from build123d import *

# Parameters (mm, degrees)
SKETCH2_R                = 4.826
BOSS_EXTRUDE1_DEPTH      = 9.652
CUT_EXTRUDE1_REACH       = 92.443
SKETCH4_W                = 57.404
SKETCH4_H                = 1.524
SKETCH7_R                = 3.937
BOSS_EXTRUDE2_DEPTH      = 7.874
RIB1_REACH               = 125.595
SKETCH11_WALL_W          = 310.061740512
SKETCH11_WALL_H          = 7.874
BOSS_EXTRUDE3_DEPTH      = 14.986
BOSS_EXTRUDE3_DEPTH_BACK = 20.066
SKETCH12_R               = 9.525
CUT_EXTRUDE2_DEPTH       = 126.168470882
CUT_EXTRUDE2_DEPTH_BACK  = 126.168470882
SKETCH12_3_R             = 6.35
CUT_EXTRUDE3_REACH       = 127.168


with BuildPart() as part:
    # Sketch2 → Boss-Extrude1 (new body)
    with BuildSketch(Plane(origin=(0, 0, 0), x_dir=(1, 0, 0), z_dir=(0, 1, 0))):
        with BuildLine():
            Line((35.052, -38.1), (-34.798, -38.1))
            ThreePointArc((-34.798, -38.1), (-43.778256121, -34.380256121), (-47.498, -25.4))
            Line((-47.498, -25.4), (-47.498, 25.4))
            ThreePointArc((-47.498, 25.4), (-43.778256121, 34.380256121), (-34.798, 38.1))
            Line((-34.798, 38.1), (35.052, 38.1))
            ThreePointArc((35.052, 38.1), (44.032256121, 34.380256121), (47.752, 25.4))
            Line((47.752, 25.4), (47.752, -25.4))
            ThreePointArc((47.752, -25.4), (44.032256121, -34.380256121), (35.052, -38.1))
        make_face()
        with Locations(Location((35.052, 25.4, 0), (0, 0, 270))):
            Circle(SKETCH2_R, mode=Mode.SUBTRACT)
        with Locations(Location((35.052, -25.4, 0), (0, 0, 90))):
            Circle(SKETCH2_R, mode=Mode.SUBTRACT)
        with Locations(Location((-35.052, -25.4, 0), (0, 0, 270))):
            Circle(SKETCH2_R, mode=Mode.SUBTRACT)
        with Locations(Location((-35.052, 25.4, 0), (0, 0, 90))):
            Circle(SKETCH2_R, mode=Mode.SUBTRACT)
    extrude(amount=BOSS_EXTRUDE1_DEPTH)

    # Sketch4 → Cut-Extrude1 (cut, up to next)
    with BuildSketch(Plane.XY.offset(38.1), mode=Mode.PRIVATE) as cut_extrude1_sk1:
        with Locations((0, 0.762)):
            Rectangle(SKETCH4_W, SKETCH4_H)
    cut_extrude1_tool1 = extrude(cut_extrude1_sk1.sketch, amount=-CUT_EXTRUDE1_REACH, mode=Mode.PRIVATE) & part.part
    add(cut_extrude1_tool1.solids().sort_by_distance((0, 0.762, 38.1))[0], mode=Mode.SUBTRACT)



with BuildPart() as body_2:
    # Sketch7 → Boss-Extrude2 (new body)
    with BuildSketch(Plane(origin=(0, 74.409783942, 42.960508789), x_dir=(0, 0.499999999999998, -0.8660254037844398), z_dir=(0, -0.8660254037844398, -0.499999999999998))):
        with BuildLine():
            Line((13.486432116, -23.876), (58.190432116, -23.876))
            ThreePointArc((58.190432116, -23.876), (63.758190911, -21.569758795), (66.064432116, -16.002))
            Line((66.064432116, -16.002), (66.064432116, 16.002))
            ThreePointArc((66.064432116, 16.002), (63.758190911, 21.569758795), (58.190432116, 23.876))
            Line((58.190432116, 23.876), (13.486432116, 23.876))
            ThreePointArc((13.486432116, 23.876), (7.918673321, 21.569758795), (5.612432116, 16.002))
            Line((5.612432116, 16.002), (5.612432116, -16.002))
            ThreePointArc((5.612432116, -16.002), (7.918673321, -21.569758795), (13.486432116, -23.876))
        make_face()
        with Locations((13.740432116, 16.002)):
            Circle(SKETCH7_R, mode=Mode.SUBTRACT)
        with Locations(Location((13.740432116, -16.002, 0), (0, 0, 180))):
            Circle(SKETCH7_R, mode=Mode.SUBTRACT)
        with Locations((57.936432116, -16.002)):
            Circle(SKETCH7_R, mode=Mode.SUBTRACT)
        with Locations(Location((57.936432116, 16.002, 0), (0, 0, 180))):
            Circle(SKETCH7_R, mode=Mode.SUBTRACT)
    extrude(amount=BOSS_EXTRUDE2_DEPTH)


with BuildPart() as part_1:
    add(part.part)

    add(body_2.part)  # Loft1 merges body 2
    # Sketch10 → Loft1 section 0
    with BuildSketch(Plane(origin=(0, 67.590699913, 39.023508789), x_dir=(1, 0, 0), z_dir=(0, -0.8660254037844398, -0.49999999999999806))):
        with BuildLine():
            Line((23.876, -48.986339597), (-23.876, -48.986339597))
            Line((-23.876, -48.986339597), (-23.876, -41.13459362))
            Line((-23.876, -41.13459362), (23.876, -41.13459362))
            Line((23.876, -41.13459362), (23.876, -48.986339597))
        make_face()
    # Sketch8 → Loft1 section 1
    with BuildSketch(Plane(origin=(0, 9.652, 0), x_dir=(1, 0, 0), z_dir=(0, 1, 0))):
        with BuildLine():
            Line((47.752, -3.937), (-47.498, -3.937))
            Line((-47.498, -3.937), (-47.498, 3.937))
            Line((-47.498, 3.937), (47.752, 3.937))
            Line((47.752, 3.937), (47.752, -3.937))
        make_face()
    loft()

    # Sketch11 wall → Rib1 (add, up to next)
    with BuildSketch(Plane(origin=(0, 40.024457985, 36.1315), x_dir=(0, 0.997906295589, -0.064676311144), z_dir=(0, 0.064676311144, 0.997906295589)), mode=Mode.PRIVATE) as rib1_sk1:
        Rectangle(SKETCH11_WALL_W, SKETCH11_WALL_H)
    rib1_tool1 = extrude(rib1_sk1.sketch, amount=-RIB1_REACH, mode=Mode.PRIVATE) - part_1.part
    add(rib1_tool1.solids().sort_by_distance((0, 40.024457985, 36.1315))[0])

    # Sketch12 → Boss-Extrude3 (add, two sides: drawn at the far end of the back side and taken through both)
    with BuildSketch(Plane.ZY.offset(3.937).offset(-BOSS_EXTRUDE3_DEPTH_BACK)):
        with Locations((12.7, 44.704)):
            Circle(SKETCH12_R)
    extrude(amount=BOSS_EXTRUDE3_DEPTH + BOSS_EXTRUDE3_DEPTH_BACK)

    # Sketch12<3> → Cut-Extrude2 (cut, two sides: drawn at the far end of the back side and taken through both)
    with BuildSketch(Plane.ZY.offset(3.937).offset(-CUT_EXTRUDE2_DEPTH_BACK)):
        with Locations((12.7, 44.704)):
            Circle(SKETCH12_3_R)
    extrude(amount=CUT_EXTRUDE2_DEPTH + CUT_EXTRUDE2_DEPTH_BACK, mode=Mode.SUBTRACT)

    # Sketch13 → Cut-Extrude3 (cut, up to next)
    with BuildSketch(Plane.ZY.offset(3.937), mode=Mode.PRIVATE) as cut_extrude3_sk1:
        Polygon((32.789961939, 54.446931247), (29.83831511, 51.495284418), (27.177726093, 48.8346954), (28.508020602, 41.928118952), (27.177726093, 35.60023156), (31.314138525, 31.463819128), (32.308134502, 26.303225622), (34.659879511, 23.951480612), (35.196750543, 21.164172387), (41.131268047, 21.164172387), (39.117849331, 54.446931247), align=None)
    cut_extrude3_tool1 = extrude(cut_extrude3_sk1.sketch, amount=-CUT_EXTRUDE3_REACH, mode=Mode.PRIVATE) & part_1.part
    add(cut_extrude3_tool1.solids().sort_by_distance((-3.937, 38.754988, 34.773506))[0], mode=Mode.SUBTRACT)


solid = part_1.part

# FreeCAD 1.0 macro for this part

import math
import FreeCAD as App
import Part
import Sketcher
from FreeCAD import Vector
Q = App.Units.Quantity

doc = App.newDocument("Part")
body = doc.addObject("PartDesign::Body", "Body")

# Sketch on XZ plane
sketch1 = doc.addObject("Sketcher::SketchObject", "Sketch")
body.addObject(sketch1)
sketch1.AttachmentSupport = (doc.XZ_Plane, [""])
sketch1.MapMode = "FlatFace"
sketch1.addGeometry([
    Part.LineSegment(Vector(-34.8, 38.1, 0), Vector(35.1, 38.1, 0)),  # 0
    Part.ArcOfCircle(Part.Circle(Vector(35.1, 25.4, 0), Vector(0, 0, 1), 12.7), math.radians(0), math.radians(90)),  # 1
    Part.LineSegment(Vector(47.8, 25.4, 0), Vector(47.8, -25.4, 0)),  # 2
    Part.ArcOfCircle(Part.Circle(Vector(35.1, -25.4, 0), Vector(0, 0, 1), 12.7), math.radians(-90), math.radians(0)),  # 3
    Part.LineSegment(Vector(35.1, -38.1, 0), Vector(-34.8, -38.1, 0)),  # 4
    Part.ArcOfCircle(Part.Circle(Vector(-34.8, -25.4, 0), Vector(0, 0, 1), 12.7), math.radians(180), math.radians(270)),  # 5
    Part.LineSegment(Vector(-47.5, -25.4, 0), Vector(-47.5, 25.4, 0)),  # 6
    Part.ArcOfCircle(Part.Circle(Vector(-34.8, 25.4, 0), Vector(0, 0, 1), 12.7), math.radians(90), math.radians(180)),  # 7
    Part.Circle(Vector(35.1, 25.4, 0), Vector(0, 0, 1), 4.8),  # 8
    Part.Circle(Vector(-35.1, 25.4, 0), Vector(0, 0, 1), 4.8),  # 9
    Part.Circle(Vector(35.1, -25.4, 0), Vector(0, 0, 1), 4.8),  # 10
    Part.Circle(Vector(-35.1, -25.4, 0), Vector(0, 0, 1), 4.8),  # 11
], False)
sketch1.addConstraint([
    Sketcher.Constraint("Tangent", 0, 2, 1, 2),
    Sketcher.Constraint("Tangent", 1, 1, 2, 1),
    Sketcher.Constraint("Tangent", 2, 2, 3, 2),
    Sketcher.Constraint("Tangent", 3, 1, 4, 1),
    Sketcher.Constraint("Tangent", 4, 2, 5, 2),
    Sketcher.Constraint("Tangent", 5, 1, 6, 1),
    Sketcher.Constraint("Tangent", 6, 2, 7, 2),
    Sketcher.Constraint("Tangent", 7, 1, 0, 1),
    Sketcher.Constraint("Horizontal", 0),
    Sketcher.Constraint("Vertical", 2),
    Sketcher.Constraint("Horizontal", 4),
    Sketcher.Constraint("Vertical", 6),
    Sketcher.Constraint("Coincident", 8, 3, 1, 3),
    Sketcher.Constraint("Coincident", 10, 3, 3, 3),
    Sketcher.Constraint("Equal", 1, 3),
    Sketcher.Constraint("Equal", 3, 5),
    Sketcher.Constraint("Equal", 5, 7),
    Sketcher.Constraint("Equal", 8, 9),
    Sketcher.Constraint("Equal", 9, 10),
    Sketcher.Constraint("Equal", 10, 11),
    Sketcher.Constraint("Symmetric", 3, 3, 9, 3, -1, 1),
    Sketcher.Constraint("Symmetric", 1, 3, 11, 3, -1, 1),
    Sketcher.Constraint("Horizontal", 8, 3, 9, 3),
    Sketcher.Constraint("Radius", 1, Q("0.5 in")),
    Sketcher.Constraint("Diameter", 8, Q("0.38 in")),
    Sketcher.Constraint("DistanceY", 2, 2, 2, 1, Q("2 in")),
    Sketcher.Constraint("DistanceX", 0, 1, 0, 2, Q("2.75 in")),
    Sketcher.Constraint("DistanceX", -1, 1, 1, 3, Q("1.38 in")),
])
pad1 = doc.addObject("PartDesign::Pad", "Pad")
body.addObject(pad1)
pad1.Profile = sketch1
pad1.Length = Q("0.38 in")
pad1.Reversed = True

# Sketch on XY plane
sketch2 = doc.addObject("Sketcher::SketchObject", "Sketch001")
body.addObject(sketch2)
sketch2.AttachmentSupport = (doc.XY_Plane, [""])
sketch2.MapMode = "FlatFace"
sketch2.AttachmentOffset = App.Placement(Vector(0, 0, 1.5 * 25.4), App.Rotation())
sketch2.addGeometry([
    Part.LineSegment(Vector(-28.7, 1.5, 0), Vector(-28.7, 0, 0)),
    Part.LineSegment(Vector(-28.7, 0, 0), Vector(28.7, 0, 0)),
    Part.LineSegment(Vector(28.7, 0, 0), Vector(28.7, 1.5, 0)),
    Part.LineSegment(Vector(28.7, 1.5, 0), Vector(-28.7, 1.5, 0)),
], False)
sketch2.addConstraint([
    Sketcher.Constraint("Coincident", 0, 2, 1, 1),
    Sketcher.Constraint("Coincident", 1, 2, 2, 1),
    Sketcher.Constraint("Coincident", 2, 2, 3, 1),
    Sketcher.Constraint("Coincident", 3, 2, 0, 1),
    Sketcher.Constraint("Vertical", 0),
    Sketcher.Constraint("Horizontal", 1),
    Sketcher.Constraint("Vertical", 2),
    Sketcher.Constraint("Horizontal", 3),
    Sketcher.Constraint("Symmetric", 0, 2, 1, 2, -1, 1),
    Sketcher.Constraint("DistanceX", 1, 1, 1, 2, Q("2.26 in")),
    Sketcher.Constraint("DistanceY", 0, 2, 0, 1, Q("0.06 in")),
])
pocket1 = doc.addObject("PartDesign::Pocket", "Pocket")
body.addObject(pocket1)
pocket1.Profile = sketch2
pocket1.Type = "UpToFirst"
body2 = doc.addObject("PartDesign::Body", "Body001")

# Sketch on an angled plane
sketch3 = doc.addObject("Sketcher::SketchObject", "Sketch002")
body2.addObject(sketch3)
sketch3.Placement = App.Placement(Vector(0, 74.409784, 42.960509), App.Rotation(Vector(0, 0.5, -0.866025404), Vector(1, 0, 0), Vector(0, -0.866025404, -0.5), "ZXY"))
sketch3.addGeometry([
    Part.LineSegment(Vector(13.5, -23.9, 0), Vector(58.2, -23.9, 0)),  # 0
    Part.ArcOfCircle(Part.Circle(Vector(58.2, -16, 0), Vector(0, 0, 1), 7.9), math.radians(-90), math.radians(0)),  # 1
    Part.LineSegment(Vector(66.1, -16, 0), Vector(66.1, 16, 0)),  # 2
    Part.ArcOfCircle(Part.Circle(Vector(58.2, 16, 0), Vector(0, 0, 1), 7.9), math.radians(0), math.radians(90)),  # 3
    Part.LineSegment(Vector(58.2, 23.9, 0), Vector(13.5, 23.9, 0)),  # 4
    Part.ArcOfCircle(Part.Circle(Vector(13.5, 16, 0), Vector(0, 0, 1), 7.9), math.radians(90), math.radians(180)),  # 5
    Part.LineSegment(Vector(5.6, 16, 0), Vector(5.6, -16, 0)),  # 6
    Part.ArcOfCircle(Part.Circle(Vector(13.5, -16, 0), Vector(0, 0, 1), 7.9), math.radians(180), math.radians(270)),  # 7
    Part.Circle(Vector(13.7, -16, 0), Vector(0, 0, 1), 3.9),  # 8
    Part.Circle(Vector(57.9, -16, 0), Vector(0, 0, 1), 3.9),  # 9
    Part.Circle(Vector(13.7, 16, 0), Vector(0, 0, 1), 3.9),  # 10
    Part.Circle(Vector(57.9, 16, 0), Vector(0, 0, 1), 3.9),  # 11
], False)
sketch3.addConstraint([
    Sketcher.Constraint("Tangent", 0, 2, 1, 1),
    Sketcher.Constraint("Tangent", 1, 2, 2, 1),
    Sketcher.Constraint("Tangent", 2, 2, 3, 1),
    Sketcher.Constraint("Tangent", 3, 2, 4, 1),
    Sketcher.Constraint("Tangent", 4, 2, 5, 1),
    Sketcher.Constraint("Tangent", 5, 2, 6, 1),
    Sketcher.Constraint("Tangent", 6, 2, 7, 1),
    Sketcher.Constraint("Tangent", 7, 2, 0, 1),
    Sketcher.Constraint("Horizontal", 0),
    Sketcher.Constraint("Vertical", 2),
    Sketcher.Constraint("Horizontal", 4),
    Sketcher.Constraint("Vertical", 6),
    Sketcher.Constraint("Equal", 1, 3),
    Sketcher.Constraint("Equal", 3, 5),
    Sketcher.Constraint("Equal", 5, 7),
    Sketcher.Constraint("Equal", 8, 9),
    Sketcher.Constraint("Equal", 9, 10),
    Sketcher.Constraint("Equal", 10, 11),
    Sketcher.Constraint("Symmetric", 8, 3, 10, 3, -1),
    Sketcher.Constraint("Symmetric", 9, 3, 11, 3, -1),
    Sketcher.Constraint("Horizontal", 7, 3, 8, 3),
    Sketcher.Constraint("Horizontal", 8, 3, 9, 3),
    Sketcher.Constraint("Horizontal", 5, 3, 10, 3),
    Sketcher.Constraint("Diameter", 8, Q("0.31 in")),
    Sketcher.Constraint("Radius", 1, Q("0.31 in")),
    Sketcher.Constraint("DistanceX", 0, 1, 0, 2, Q("1.76 in")),
    Sketcher.Constraint("DistanceY", 2, 1, 2, 2, Q("1.26 in")),
    Sketcher.Constraint("DistanceX", 7, 3, 8, 3, Q("0.01 in")),
    Sketcher.Constraint("DistanceX", 9, 3, 1, 3, Q("0.01 in")),
    Sketcher.Constraint("DistanceX", -1, 1, 1, 3, 58.190432),
])
pad2 = doc.addObject("PartDesign::Pad", "Pad001")
body2.addObject(pad2)
pad2.Profile = sketch3
pad2.Length = Q("0.31 in")
body.AllowCompound = True
doc.recompute()

boolean = doc.addObject("PartDesign::Boolean", "Boolean")
body.addObject(boolean)
boolean.Type = "Fuse"
boolean.addObjects([body2])

# Sketch on an angled plane
sketch4 = doc.addObject("Sketcher::SketchObject", "Sketch003")
body.addObject(sketch4)
sketch4.Placement = App.Placement(Vector(0, 67.5907, 39.023509), App.Rotation(Vector(1, 0, 0), Vector(0, -0.5, 0.866025404), Vector(0, -0.866025404, -0.5), "ZXY"))
sketch4.addGeometry([
    Part.LineSegment(Vector(-24, -49, 0), Vector(24, -49, 0)),
    Part.LineSegment(Vector(24, -49, 0), Vector(24, -41, 0)),
    Part.LineSegment(Vector(24, -41, 0), Vector(-24, -41, 0)),
    Part.LineSegment(Vector(-24, -41, 0), Vector(-24, -49, 0)),
], False)
sketch4.addConstraint([
    Sketcher.Constraint("Coincident", 0, 2, 1, 1),
    Sketcher.Constraint("Coincident", 1, 2, 2, 1),
    Sketcher.Constraint("Coincident", 2, 2, 3, 1),
    Sketcher.Constraint("Coincident", 3, 2, 0, 1),
    Sketcher.Constraint("Horizontal", 0),
    Sketcher.Constraint("Vertical", 1),
    Sketcher.Constraint("Horizontal", 2),
    Sketcher.Constraint("Vertical", 3),
    Sketcher.Constraint("DistanceX", 0, 1, 0, 2, Q("1.88 in")),
    Sketcher.Constraint("DistanceX", -1, 1, 0, 2, Q("0.94 in")),
    Sketcher.Constraint("DistanceY", 1, 1, 1, 2, 7.851746),
    Sketcher.Constraint("DistanceY", 0, 2, -1, 1, 48.98634),
])

# Sketch on XZ plane
sketch5 = doc.addObject("Sketcher::SketchObject", "Sketch004")
body.addObject(sketch5)
sketch5.AttachmentSupport = (doc.XZ_Plane, [""])
sketch5.MapMode = "FlatFace"
sketch5.AttachmentOffset = App.Placement(Vector(0, 0, -0.38 * 25.4), App.Rotation())
sketch5.addGeometry([
    Part.LineSegment(Vector(-47, 4, 0), Vector(48, 4, 0)),
    Part.LineSegment(Vector(48, 4, 0), Vector(48, -4, 0)),
    Part.LineSegment(Vector(48, -4, 0), Vector(-47, -4, 0)),
    Part.LineSegment(Vector(-47, -4, 0), Vector(-47, 4, 0)),
], False)
sketch5.addConstraint([
    Sketcher.Constraint("Coincident", 0, 2, 1, 1),
    Sketcher.Constraint("Coincident", 1, 2, 2, 1),
    Sketcher.Constraint("Coincident", 2, 2, 3, 1),
    Sketcher.Constraint("Coincident", 3, 2, 0, 1),
    Sketcher.Constraint("Horizontal", 0),
    Sketcher.Constraint("Vertical", 1),
    Sketcher.Constraint("Horizontal", 2),
    Sketcher.Constraint("Vertical", 3),
    Sketcher.Constraint("DistanceX", 0, 1, 0, 2, Q("3.75 in")),
    Sketcher.Constraint("DistanceY", 1, 2, 1, 1, Q("0.31 in")),
    Sketcher.Constraint("DistanceX", -1, 1, 0, 2, Q("1.88 in")),
    Sketcher.Constraint("DistanceY", -1, 1, 0, 2, Q("0.155 in")),
])

additiveloft = doc.addObject("PartDesign::AdditiveLoft", "AdditiveLoft")
body.addObject(additiveloft)
additiveloft.Profile = sketch4
additiveloft.Sections = [sketch5]

# Sketch on an angled plane
sketch6 = doc.addObject("Sketcher::SketchObject", "Sketch005")
body.addObject(sketch6)
sketch6.Placement = App.Placement(Vector(0, 40.024458, 36.1315), App.Rotation(Vector(0, 0.997906296, -0.064676311), Vector(-1.000000001, 0, 0), Vector(0, 0.064676311, 0.997906296), "ZXY"))
sketch6.addGeometry([
    Part.LineSegment(Vector(-155, 4, 0), Vector(-155, -4, 0)),
    Part.LineSegment(Vector(-155, -4, 0), Vector(155, -4, 0)),
    Part.LineSegment(Vector(155, -4, 0), Vector(155, 4, 0)),
    Part.LineSegment(Vector(155, 4, 0), Vector(-155, 4, 0)),
], False)
sketch6.addConstraint([
    Sketcher.Constraint("Coincident", 0, 2, 1, 1),
    Sketcher.Constraint("Coincident", 1, 2, 2, 1),
    Sketcher.Constraint("Coincident", 2, 2, 3, 1),
    Sketcher.Constraint("Coincident", 3, 2, 0, 1),
    Sketcher.Constraint("Vertical", 0),
    Sketcher.Constraint("Horizontal", 1),
    Sketcher.Constraint("Vertical", 2),
    Sketcher.Constraint("Horizontal", 3),
    Sketcher.Constraint("Symmetric", 0, 2, 2, 2, -1, 1),
    Sketcher.Constraint("DistanceY", 0, 2, 0, 1, Q("0.31 in")),
    Sketcher.Constraint("DistanceX", 1, 1, 1, 2, 310.061741),
])
pad3 = doc.addObject("PartDesign::Pad", "Pad002")
body.addObject(pad3)
pad3.Profile = sketch6
pad3.Type = "UpToFirst"
pad3.Reversed = True

# Sketch on YZ plane
sketch7 = doc.addObject("Sketcher::SketchObject", "Sketch006")
body.addObject(sketch7)
sketch7.AttachmentSupport = (doc.YZ_Plane, [""])
sketch7.MapMode = "FlatFace"
sketch7.AttachmentOffset = App.Placement(Vector(0, 0, -0.155 * 25.4), App.Rotation())
sketch7.addGeometry(Part.Circle(Vector(45, 13, 0), Vector(0, 0, 1), 10), False)
sketch7.addConstraint([
    Sketcher.Constraint("Diameter", 0, Q("0.75 in")),
    Sketcher.Constraint("DistanceY", -1, 1, 0, 3, Q("0.5 in")),
    Sketcher.Constraint("DistanceX", -1, 1, 0, 3, Q("1.76 in")),
])
pad4 = doc.addObject("PartDesign::Pad", "Pad003")
body.addObject(pad4)
pad4.Profile = sketch7
pad4.Type = "TwoLengths"
pad4.Length = Q("0.59 in")
pad4.Length2 = Q("0.79 in")
pad4.Reversed = True

# Sketch on YZ plane
sketch8 = doc.addObject("Sketcher::SketchObject", "Sketch007")
body.addObject(sketch8)
sketch8.AttachmentSupport = (doc.YZ_Plane, [""])
sketch8.MapMode = "FlatFace"
sketch8.AttachmentOffset = App.Placement(Vector(0, 0, -0.155 * 25.4), App.Rotation())
sketch8.addGeometry(Part.Circle(Vector(45, 13, 0), Vector(0, 0, 1), 6), False)
sketch8.addConstraint([
    Sketcher.Constraint("Diameter", 0, Q("0.5 in")),
    Sketcher.Constraint("DistanceY", -1, 1, 0, 3, Q("0.5 in")),
    Sketcher.Constraint("DistanceX", -1, 1, 0, 3, Q("1.76 in")),
])
pocket2 = doc.addObject("PartDesign::Pocket", "Pocket001")
body.addObject(pocket2)
pocket2.Profile = sketch8
pocket2.Type = "ThroughAll"
pocket2.Midplane = True

# Sketch on YZ plane
sketch9 = doc.addObject("Sketcher::SketchObject", "Sketch008")
body.addObject(sketch9)
sketch9.AttachmentSupport = (doc.YZ_Plane, [""])
sketch9.MapMode = "FlatFace"
sketch9.AttachmentOffset = App.Placement(Vector(0, 0, -0.155 * 25.4), App.Rotation())
sketch9.addGeometry([
    Part.LineSegment(Vector(54.4, 32.8, 0), Vector(51.5, 29.8, 0)),  # 0
    Part.LineSegment(Vector(51.5, 29.8, 0), Vector(48.8, 27.2, 0)),  # 1
    Part.LineSegment(Vector(48.8, 27.2, 0), Vector(41.9, 28.5, 0)),  # 2
    Part.LineSegment(Vector(41.9, 28.5, 0), Vector(35.6, 27.2, 0)),  # 3
    Part.LineSegment(Vector(35.6, 27.2, 0), Vector(31.5, 31.3, 0)),  # 4
    Part.LineSegment(Vector(31.5, 31.3, 0), Vector(26.3, 32.3, 0)),  # 5
    Part.LineSegment(Vector(26.3, 32.3, 0), Vector(24, 34.7, 0)),  # 6
    Part.LineSegment(Vector(24, 34.7, 0), Vector(21.2, 35.2, 0)),  # 7
    Part.LineSegment(Vector(21.2, 35.2, 0), Vector(21.2, 41.1, 0)),  # 8
    Part.LineSegment(Vector(21.2, 41.1, 0), Vector(54.4, 39.1, 0)),  # 9
    Part.LineSegment(Vector(54.4, 39.1, 0), Vector(54.4, 32.8, 0)),  # 10
], False)
sketch9.addConstraint([
    Sketcher.Constraint("Coincident", 0, 2, 1, 1),
    Sketcher.Constraint("Coincident", 1, 2, 2, 1),
    Sketcher.Constraint("Coincident", 2, 2, 3, 1),
    Sketcher.Constraint("Coincident", 3, 2, 4, 1),
    Sketcher.Constraint("Coincident", 4, 2, 5, 1),
    Sketcher.Constraint("Coincident", 5, 2, 6, 1),
    Sketcher.Constraint("Coincident", 6, 2, 7, 1),
    Sketcher.Constraint("Coincident", 7, 2, 8, 1),
    Sketcher.Constraint("Coincident", 8, 2, 9, 1),
    Sketcher.Constraint("Coincident", 9, 2, 10, 1),
    Sketcher.Constraint("Coincident", 10, 2, 0, 1),
    Sketcher.Constraint("Vertical", 8),
    Sketcher.Constraint("Vertical", 10),
    Sketcher.Constraint("Parallel", 0, 1),
    Sketcher.Constraint("Perpendicular", 1, 4),
    Sketcher.Constraint("Parallel", 2, 5),
    Sketcher.Constraint("Parallel", 4, 6),
    Sketcher.Constraint("Parallel", 5, 7),
    Sketcher.Constraint("Horizontal", 1, 2, 3, 2),
    Sketcher.Constraint("Angle", 0, Q("-135 deg")),
    Sketcher.Constraint("DistanceX", 4, 2, 2, 2, 10.4643),
    Sketcher.Constraint("DistanceX", 3, 2, 9, 2, 18.8467),
    Sketcher.Constraint("Distance", 0, 4.174259),
    Sketcher.Constraint("Distance", 1, 3.762641),
    Sketcher.Constraint("Distance", 4, 5.849771),
    Sketcher.Constraint("Distance", 5, 5.25545),
    Sketcher.Constraint("Distance", 6, 3.32587),
    Sketcher.Constraint("Distance", 7, 2.838541),
    Sketcher.Constraint("DistanceY", 8, 1, 8, 2, 5.934518),
    Sketcher.Constraint("DistanceY", 10, 2, 10, 1, 6.327887),
    Sketcher.Constraint("DistanceX", -1, 1, 2, 2, 41.928119),
    Sketcher.Constraint("DistanceY", -1, 1, 2, 2, 28.508021),
    Sketcher.Constraint("DistanceY", -1, 1, 4, 2, 31.314139),
])
pocket3 = doc.addObject("PartDesign::Pocket", "Pocket002")
body.addObject(pocket3)
pocket3.Profile = sketch9
pocket3.Type = "UpToFirst"
pocket3.Reversed = True

doc.recompute()
